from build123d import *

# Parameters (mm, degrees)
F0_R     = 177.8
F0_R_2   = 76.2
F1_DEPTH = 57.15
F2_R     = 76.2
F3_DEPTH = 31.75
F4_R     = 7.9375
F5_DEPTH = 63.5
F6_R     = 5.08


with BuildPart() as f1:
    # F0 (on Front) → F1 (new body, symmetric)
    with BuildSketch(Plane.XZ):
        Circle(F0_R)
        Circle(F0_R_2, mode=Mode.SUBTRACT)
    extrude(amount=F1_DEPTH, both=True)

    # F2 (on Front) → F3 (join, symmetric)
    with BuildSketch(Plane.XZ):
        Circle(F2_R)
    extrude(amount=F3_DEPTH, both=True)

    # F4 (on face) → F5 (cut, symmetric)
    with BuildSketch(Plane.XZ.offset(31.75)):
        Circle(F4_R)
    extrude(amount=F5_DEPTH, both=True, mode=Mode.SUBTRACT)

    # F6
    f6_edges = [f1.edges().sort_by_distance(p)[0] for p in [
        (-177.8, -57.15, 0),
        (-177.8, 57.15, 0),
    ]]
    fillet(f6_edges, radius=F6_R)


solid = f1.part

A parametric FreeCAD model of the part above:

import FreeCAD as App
import Part
import Sketcher

V = App.Vector
Q = App.Units.Quantity


def edges_at(feature, points):
    """Names of the edges that pass closest to the given points."""
    edges = feature.Shape.Edges
    near = lambda p: min(range(len(edges)), key=lambda i: edges[i].distToShape(Part.Vertex(*p))[0])
    return sorted({f"Edge{near(p) + 1}" for p in points})

doc = App.newDocument("Part")
body = doc.addObject("PartDesign::Body", "Body")

# Sketch on XZ plane
sketch1 = body.newObject("Sketcher::SketchObject", "Sketch")
sketch1.AttachmentSupport = (doc.getObject("XZ_Plane"), [""])
sketch1.MapMode = "FlatFace"
sketch1.addGeometry(Part.Circle(V(0, 0, 0), V(0, 0, 1), 177.8), False)
sketch1.addGeometry(Part.Circle(V(0, 0, 0), V(0, 0, 1), 76.2), False)
sketch1.addConstraint(Sketcher.Constraint("Coincident", 0, 3, -1, 1))
sketch1.addConstraint(Sketcher.Constraint("Coincident", 1, 3, -1, 1))
sketch1.addConstraint(Sketcher.Constraint("Diameter", 0, Q("14 in")))
sketch1.addConstraint(Sketcher.Constraint("Diameter", 1, Q("6 in")))
pad1 = body.newObject("PartDesign::Pad", "Pad")
pad1.Profile = sketch1
pad1.Length = Q("4.5 in")
pad1.Midplane = True

# Sketch on XZ plane
sketch2 = body.newObject("Sketcher::SketchObject", "Sketch001")
sketch2.AttachmentSupport = (doc.getObject("XZ_Plane"), [""])
sketch2.MapMode = "FlatFace"
sketch2.addGeometry(Part.Circle(V(0, 0, 0), V(0, 0, 1), 76.2), False)
sketch2.addConstraint(Sketcher.Constraint("Coincident", 0, 3, -1, 1))
sketch2.addConstraint(Sketcher.Constraint("Diameter", 0, Q("6 in")))
pad2 = body.newObject("PartDesign::Pad", "Pad001")
pad2.Profile = sketch2
pad2.Length = Q("2.5 in")
pad2.Midplane = True

# Sketch on XZ plane
sketch3 = body.newObject("Sketcher::SketchObject", "Sketch002")
sketch3.AttachmentSupport = (doc.getObject("XZ_Plane"), [""])
sketch3.MapMode = "FlatFace"
sketch3.AttachmentOffset = App.Placement(V(0, 0, 1.25 * 25.4), App.Rotation())
sketch3.addGeometry(Part.Circle(V(0, 0, 0), V(0, 0, 1), 7.9375), False)
sketch3.addConstraint(Sketcher.Constraint("Coincident", 0, 3, -1, 1))
sketch3.addConstraint(Sketcher.Constraint("Diameter", 0, Q("0.625 in")))
pocket1 = body.newObject("PartDesign::Pocket", "Pocket")
pocket1.Profile = sketch3
pocket1.Length = Q("5 in")
pocket1.Midplane = True
doc.recompute()

fillet = body.newObject("PartDesign::Fillet", "Fillet")
fillet.Base = (pocket1, edges_at(pocket1, [(-177.8, -57.15, 0), (-177.8, 57.15, 0)]))
fillet.Radius = Q("0.2 in")

doc.recompute()
